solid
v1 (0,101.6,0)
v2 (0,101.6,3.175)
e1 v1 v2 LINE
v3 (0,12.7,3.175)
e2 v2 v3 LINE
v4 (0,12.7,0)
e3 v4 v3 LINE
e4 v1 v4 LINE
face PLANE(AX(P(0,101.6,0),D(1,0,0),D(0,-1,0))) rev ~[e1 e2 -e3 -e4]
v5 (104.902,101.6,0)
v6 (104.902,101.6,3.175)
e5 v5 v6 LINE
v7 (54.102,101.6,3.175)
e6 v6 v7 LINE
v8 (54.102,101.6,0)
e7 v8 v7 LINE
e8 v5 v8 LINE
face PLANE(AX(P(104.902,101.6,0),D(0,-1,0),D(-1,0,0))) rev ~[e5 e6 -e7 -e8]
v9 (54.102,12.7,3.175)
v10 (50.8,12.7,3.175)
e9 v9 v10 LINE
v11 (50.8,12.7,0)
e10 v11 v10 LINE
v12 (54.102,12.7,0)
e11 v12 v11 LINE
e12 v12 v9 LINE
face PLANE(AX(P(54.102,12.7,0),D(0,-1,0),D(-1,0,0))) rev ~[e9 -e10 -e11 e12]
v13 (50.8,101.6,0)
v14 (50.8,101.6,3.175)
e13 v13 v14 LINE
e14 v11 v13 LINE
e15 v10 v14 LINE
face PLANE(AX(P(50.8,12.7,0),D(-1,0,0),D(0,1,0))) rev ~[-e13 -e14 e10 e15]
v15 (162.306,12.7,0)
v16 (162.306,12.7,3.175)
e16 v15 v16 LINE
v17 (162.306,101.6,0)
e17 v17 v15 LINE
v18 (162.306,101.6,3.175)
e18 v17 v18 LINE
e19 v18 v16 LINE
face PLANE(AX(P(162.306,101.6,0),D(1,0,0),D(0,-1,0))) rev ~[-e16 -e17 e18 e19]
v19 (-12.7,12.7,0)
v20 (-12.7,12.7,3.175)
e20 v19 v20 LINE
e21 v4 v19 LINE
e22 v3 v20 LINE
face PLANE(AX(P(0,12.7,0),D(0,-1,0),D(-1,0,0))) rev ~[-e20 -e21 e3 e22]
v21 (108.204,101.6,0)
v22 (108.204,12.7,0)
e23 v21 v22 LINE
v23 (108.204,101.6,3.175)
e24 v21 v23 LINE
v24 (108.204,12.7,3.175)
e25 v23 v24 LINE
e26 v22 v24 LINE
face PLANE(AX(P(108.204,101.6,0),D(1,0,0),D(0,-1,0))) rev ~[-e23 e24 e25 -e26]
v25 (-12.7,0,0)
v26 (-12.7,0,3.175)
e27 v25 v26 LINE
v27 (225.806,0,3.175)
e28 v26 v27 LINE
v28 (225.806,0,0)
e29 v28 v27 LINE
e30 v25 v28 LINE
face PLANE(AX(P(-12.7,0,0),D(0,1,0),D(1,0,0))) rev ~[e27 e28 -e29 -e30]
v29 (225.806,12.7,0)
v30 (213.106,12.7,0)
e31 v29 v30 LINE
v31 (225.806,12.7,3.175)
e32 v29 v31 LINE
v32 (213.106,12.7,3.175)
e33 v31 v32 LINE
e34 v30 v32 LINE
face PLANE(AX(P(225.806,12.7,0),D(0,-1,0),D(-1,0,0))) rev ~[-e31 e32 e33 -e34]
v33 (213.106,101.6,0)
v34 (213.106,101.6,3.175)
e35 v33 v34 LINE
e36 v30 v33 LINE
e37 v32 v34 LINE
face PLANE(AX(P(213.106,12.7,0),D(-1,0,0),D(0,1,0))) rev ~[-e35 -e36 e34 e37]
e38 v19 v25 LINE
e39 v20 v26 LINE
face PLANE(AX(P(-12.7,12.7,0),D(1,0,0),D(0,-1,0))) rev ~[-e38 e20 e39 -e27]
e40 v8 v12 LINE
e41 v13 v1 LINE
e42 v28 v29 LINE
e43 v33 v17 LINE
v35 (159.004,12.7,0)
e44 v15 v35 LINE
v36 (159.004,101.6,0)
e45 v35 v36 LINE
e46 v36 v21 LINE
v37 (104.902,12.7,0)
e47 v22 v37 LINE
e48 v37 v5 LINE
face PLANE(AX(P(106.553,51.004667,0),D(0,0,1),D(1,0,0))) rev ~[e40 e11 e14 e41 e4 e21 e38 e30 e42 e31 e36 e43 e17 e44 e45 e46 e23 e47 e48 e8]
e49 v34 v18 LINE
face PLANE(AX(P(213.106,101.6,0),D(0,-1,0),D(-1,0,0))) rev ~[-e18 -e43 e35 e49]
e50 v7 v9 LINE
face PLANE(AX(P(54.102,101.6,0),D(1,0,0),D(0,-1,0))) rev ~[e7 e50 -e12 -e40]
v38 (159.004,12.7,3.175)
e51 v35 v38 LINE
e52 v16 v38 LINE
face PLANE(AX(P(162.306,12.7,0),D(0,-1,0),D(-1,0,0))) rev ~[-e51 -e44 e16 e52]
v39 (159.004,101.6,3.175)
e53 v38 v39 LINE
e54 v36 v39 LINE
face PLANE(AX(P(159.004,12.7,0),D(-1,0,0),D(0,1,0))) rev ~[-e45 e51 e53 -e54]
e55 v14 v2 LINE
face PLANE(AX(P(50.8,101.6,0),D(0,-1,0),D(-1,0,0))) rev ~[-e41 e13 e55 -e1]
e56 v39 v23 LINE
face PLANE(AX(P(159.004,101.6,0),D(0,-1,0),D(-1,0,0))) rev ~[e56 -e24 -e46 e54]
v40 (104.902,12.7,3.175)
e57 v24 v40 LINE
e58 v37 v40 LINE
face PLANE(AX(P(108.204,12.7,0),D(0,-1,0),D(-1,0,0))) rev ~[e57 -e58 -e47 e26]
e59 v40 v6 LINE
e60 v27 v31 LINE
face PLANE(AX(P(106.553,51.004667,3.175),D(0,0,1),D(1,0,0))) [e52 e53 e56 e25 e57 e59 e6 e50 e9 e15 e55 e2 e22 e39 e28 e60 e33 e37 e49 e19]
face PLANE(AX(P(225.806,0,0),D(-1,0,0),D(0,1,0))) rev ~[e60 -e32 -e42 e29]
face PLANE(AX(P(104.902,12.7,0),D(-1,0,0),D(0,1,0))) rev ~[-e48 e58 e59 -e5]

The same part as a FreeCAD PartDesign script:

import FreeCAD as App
import Part
import Sketcher
from FreeCAD import Vector
Q = App.Units.Quantity

doc = App.newDocument("Part")
body = doc.addObject("PartDesign::Body", "Body")

# Sketch on XY plane
sketch1 = body.newObject("Sketcher::SketchObject", "Sketch")
sketch1.AttachmentSupport = (doc.getObject("XY_Plane"), [""])
sketch1.MapMode = "FlatFace"
sketch1.addGeometry([
    Part.LineSegment(Vector(-12.7, 0, 0), Vector(225.806, 0, 0)),  # 0
    Part.LineSegment(Vector(225.806, 0, 0), Vector(225.806, 12.7, 0)),  # 1
    Part.LineSegment(Vector(225.806, 12.7, 0), Vector(213.106, 12.7, 0)),  # 2
    Part.LineSegment(Vector(213.106, 12.7, 0), Vector(213.106, 101.6, 0)),  # 3
    Part.LineSegment(Vector(213.106, 101.6, 0), Vector(162.306, 101.6, 0)),  # 4
    Part.LineSegment(Vector(162.306, 101.6, 0), Vector(162.306, 12.7, 0)),  # 5
    Part.LineSegment(Vector(162.306, 12.7, 0), Vector(159.004, 12.7, 0)),  # 6
    Part.LineSegment(Vector(159.004, 12.7, 0), Vector(159.004, 101.6, 0)),  # 7
    Part.LineSegment(Vector(159.004, 101.6, 0), Vector(108.204, 101.6, 0)),  # 8
    Part.LineSegment(Vector(108.204, 101.6, 0), Vector(108.204, 12.7, 0)),  # 9
    Part.LineSegment(Vector(108.204, 12.7, 0), Vector(104.902, 12.7, 0)),  # 10
    Part.LineSegment(Vector(104.902, 12.7, 0), Vector(104.902, 101.6, 0)),  # 11
    Part.LineSegment(Vector(104.902, 101.6, 0), Vector(54.102, 101.6, 0)),  # 12
    Part.LineSegment(Vector(54.102, 101.6, 0), Vector(54.102, 12.7, 0)),  # 13
    Part.LineSegment(Vector(54.102, 12.7, 0), Vector(50.8, 12.7, 0)),  # 14
    Part.LineSegment(Vector(50.8, 12.7, 0), Vector(50.8, 101.6, 0)),  # 15
    Part.LineSegment(Vector(50.8, 101.6, 0), Vector(0, 101.6, 0)),  # 16
    Part.LineSegment(Vector(0, 101.6, 0), Vector(0, 12.7, 0)),  # 17
    Part.LineSegment(Vector(0, 12.7, 0), Vector(-12.7, 12.7, 0)),  # 18
    Part.LineSegment(Vector(-12.7, 12.7, 0), Vector(-12.7, 0, 0)),  # 19
], False)
sketch1.addConstraint([
    Sketcher.Constraint("Coincident", 0, 2, 1, 1),
    Sketcher.Constraint("Coincident", 1, 2, 2, 1),
    Sketcher.Constraint("Coincident", 2, 2, 3, 1),
    Sketcher.Constraint("Coincident", 3, 2, 4, 1),
    Sketcher.Constraint("Coincident", 4, 2, 5, 1),
    Sketcher.Constraint("Coincident", 5, 2, 6, 1),
    Sketcher.Constraint("Coincident", 6, 2, 7, 1),
    Sketcher.Constraint("Coincident", 7, 2, 8, 1),
    Sketcher.Constraint("Coincident", 8, 2, 9, 1),
    Sketcher.Constraint("Coincident", 9, 2, 10, 1),
    Sketcher.Constraint("Coincident", 10, 2, 11, 1),
    Sketcher.Constraint("Coincident", 11, 2, 12, 1),
    Sketcher.Constraint("Coincident", 12, 2, 13, 1),
    Sketcher.Constraint("Coincident", 13, 2, 14, 1),
    Sketcher.Constraint("Coincident", 14, 2, 15, 1),
    Sketcher.Constraint("Coincident", 15, 2, 16, 1),
    Sketcher.Constraint("Coincident", 16, 2, 17, 1),
    Sketcher.Constraint("Coincident", 17, 2, 18, 1),
    Sketcher.Constraint("Coincident", 18, 2, 19, 1),
    Sketcher.Constraint("Coincident", 19, 2, 0, 1),
    Sketcher.Constraint("Horizontal", 0),
    Sketcher.Constraint("Vertical", 1),
    Sketcher.Constraint("Horizontal", 2),
    Sketcher.Constraint("Vertical", 3),
    Sketcher.Constraint("Horizontal", 4),
    Sketcher.Constraint("Vertical", 5),
    Sketcher.Constraint("Horizontal", 6),
    Sketcher.Constraint("Vertical", 7),
    Sketcher.Constraint("Horizontal", 8),
    Sketcher.Constraint("Vertical", 9),
    Sketcher.Constraint("Horizontal", 10),
    Sketcher.Constraint("Vertical", 11),
    Sketcher.Constraint("Horizontal", 12),
    Sketcher.Constraint("Vertical", 13),
    Sketcher.Constraint("Horizontal", 14),
    Sketcher.Constraint("Vertical", 15),
    Sketcher.Constraint("Horizontal", 16),
    Sketcher.Constraint("Vertical", 17),
    Sketcher.Constraint("Horizontal", 18),
    Sketcher.Constraint("Vertical", 19),
    Sketcher.Constraint("PointOnObject", 0, 2, -1),
    Sketcher.Constraint("PointOnObject", 16, 2, -2),
    Sketcher.Constraint("Horizontal", 2, 2, 5, 2),
    Sketcher.Constraint("Horizontal", 4, 2, 7, 2),
    Sketcher.Constraint("Horizontal", 6, 2, 9, 2),
    Sketcher.Constraint("Horizontal", 8, 2, 11, 2),
    Sketcher.Constraint("Horizontal", 10, 2, 13, 2),
    Sketcher.Constraint("Horizontal", 12, 2, 15, 2),
    Sketcher.Constraint("Horizontal", 14, 2, 17, 2),
    Sketcher.Constraint("Equal", 4, 8),
    Sketcher.Constraint("Equal", 6, 10),
    Sketcher.Constraint("Equal", 8, 12),
    Sketcher.Constraint("Equal", 10, 14),
    Sketcher.Constraint("Equal", 12, 16),
    Sketcher.Constraint("Equal", 2, 18),
    Sketcher.Constraint("Equal", 18, 1),
    Sketcher.Constraint("DistanceX", 4, 2, 4, 1, Q("2 in")),
    Sketcher.Constraint("DistanceX", 2, 2, 2, 1, Q("0.5 in")),
    Sketcher.Constraint("DistanceY", 3, 1, 3, 2, Q("3.5 in")),
    Sketcher.Constraint("DistanceX", 0, 1, 0, 2, Q("9.39 in")),
])
pad1 = body.newObject("PartDesign::Pad", "Pad")
pad1.Profile = sketch1
pad1.Length = Q("0.125 in")

doc.recompute()
